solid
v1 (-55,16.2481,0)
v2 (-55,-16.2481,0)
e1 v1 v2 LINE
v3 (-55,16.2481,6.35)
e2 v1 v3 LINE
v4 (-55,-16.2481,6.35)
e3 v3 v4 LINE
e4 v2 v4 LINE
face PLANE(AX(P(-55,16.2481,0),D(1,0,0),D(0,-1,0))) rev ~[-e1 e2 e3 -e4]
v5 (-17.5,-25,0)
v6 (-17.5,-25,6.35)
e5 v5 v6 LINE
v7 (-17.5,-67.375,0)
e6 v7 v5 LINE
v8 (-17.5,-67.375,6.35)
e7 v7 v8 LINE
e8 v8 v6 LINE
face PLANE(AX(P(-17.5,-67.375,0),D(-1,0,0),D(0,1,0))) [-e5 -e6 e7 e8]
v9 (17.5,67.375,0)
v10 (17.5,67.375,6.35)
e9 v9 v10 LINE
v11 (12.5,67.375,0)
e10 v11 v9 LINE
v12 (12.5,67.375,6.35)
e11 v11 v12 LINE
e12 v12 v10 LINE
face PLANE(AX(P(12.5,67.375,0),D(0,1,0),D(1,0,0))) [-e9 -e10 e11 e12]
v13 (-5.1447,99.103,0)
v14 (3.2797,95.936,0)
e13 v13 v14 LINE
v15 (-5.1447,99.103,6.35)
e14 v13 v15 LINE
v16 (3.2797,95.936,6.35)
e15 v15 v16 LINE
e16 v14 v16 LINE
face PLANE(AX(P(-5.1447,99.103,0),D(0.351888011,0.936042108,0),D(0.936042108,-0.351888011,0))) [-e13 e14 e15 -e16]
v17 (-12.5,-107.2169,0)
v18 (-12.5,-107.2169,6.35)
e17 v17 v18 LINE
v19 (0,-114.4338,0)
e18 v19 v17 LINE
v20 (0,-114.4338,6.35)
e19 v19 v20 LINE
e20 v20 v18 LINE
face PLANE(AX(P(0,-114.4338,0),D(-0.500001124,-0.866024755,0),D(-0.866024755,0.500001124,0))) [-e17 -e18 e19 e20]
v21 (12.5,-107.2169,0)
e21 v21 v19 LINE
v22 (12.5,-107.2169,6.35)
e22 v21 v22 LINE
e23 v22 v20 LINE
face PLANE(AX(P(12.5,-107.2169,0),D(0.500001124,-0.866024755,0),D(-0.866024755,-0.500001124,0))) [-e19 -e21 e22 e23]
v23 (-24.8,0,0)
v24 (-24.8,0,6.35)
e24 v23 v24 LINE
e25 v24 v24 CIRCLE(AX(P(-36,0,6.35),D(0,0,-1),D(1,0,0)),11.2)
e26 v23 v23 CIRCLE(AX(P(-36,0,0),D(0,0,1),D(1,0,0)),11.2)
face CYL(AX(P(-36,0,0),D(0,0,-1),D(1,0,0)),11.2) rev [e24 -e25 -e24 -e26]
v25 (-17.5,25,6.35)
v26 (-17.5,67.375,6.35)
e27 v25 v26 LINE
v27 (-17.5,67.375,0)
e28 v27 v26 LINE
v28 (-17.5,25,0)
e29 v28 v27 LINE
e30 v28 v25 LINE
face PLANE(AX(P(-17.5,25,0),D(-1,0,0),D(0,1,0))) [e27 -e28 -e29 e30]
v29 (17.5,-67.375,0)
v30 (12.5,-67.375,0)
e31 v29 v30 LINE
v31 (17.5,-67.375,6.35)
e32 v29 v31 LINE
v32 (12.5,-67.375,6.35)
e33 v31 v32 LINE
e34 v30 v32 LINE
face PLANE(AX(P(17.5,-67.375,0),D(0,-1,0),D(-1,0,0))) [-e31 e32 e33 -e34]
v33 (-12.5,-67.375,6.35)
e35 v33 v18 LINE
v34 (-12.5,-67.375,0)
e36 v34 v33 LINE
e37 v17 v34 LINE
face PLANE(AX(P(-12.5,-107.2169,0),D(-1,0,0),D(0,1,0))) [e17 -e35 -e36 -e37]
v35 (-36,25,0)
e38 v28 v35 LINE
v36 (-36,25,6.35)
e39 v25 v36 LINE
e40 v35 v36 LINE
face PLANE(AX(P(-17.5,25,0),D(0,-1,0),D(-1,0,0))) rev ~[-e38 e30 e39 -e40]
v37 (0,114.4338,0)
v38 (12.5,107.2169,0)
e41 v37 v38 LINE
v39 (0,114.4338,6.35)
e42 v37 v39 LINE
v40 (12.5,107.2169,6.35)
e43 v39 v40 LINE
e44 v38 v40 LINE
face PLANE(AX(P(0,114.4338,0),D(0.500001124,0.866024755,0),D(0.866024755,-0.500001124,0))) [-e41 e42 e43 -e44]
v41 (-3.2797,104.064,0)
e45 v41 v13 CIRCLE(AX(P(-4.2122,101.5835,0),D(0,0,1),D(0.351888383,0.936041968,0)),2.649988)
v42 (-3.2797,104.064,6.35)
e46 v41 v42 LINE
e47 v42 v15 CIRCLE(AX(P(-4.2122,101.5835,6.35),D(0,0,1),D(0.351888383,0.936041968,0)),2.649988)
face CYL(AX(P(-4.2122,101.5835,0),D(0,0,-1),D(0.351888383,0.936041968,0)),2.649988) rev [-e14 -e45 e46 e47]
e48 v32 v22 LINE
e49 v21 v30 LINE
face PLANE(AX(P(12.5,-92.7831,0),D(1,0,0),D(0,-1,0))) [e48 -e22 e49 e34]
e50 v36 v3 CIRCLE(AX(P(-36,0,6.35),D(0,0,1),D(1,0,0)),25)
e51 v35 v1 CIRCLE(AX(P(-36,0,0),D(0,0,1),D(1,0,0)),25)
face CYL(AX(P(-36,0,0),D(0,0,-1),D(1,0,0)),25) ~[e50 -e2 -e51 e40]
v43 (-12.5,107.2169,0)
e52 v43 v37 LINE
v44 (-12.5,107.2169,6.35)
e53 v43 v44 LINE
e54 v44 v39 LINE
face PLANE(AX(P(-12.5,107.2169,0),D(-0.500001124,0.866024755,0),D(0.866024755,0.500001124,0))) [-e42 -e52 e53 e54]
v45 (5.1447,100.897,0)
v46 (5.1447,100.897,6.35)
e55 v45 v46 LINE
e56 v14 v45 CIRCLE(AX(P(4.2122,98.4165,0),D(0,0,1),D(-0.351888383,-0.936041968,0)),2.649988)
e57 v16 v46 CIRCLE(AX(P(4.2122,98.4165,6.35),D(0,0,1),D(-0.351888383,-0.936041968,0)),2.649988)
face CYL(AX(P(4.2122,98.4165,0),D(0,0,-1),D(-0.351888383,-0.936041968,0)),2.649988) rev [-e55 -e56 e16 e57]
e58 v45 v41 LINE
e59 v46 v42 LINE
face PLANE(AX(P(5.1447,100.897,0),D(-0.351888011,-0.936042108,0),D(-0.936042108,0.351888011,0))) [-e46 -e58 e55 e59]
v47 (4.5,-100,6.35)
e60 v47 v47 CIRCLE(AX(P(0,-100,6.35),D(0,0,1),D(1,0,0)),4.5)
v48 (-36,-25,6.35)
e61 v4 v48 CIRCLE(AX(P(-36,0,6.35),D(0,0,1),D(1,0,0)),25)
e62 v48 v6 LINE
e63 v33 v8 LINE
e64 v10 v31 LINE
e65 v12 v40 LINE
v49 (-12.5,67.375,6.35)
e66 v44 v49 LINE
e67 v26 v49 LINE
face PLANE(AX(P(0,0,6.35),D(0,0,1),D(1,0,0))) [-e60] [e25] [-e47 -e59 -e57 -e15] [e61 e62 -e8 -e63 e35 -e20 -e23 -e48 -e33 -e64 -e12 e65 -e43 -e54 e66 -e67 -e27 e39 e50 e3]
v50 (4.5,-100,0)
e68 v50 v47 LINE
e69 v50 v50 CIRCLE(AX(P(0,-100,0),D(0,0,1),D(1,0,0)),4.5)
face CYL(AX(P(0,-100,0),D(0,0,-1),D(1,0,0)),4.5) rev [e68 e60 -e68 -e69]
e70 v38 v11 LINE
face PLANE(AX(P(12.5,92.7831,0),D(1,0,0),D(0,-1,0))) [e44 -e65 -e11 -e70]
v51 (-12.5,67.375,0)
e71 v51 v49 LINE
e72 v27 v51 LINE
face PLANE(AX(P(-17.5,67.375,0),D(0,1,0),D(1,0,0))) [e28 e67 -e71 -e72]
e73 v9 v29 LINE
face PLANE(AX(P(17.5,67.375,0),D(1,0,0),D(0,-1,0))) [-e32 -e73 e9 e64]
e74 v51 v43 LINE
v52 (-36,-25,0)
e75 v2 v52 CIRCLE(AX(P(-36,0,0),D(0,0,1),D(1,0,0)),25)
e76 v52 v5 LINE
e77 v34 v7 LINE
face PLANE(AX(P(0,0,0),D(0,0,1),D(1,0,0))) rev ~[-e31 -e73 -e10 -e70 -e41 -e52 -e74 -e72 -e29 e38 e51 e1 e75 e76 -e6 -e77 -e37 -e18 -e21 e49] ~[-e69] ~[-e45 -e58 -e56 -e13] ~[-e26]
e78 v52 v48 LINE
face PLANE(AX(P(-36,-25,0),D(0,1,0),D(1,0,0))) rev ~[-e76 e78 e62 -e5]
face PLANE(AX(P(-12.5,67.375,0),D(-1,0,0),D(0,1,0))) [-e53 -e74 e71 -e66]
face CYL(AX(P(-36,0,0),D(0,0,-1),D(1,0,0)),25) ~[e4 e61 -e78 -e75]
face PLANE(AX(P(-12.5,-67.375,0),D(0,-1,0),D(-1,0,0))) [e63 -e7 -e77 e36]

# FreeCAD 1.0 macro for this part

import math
import FreeCAD as App
import Part
import Sketcher

V = App.Vector
Q = App.Units.Quantity

doc = App.newDocument("Part")
params = doc.addObject("Spreadsheet::Sheet", "Params")
for row, (alias, value) in enumerate([
    ("sketch1_diameter", "9 mm"),
    ("sketch1_radius", "25 mm"),
    ("sketch1_diameter2", "22.4 mm"),
    ("sketch1_radius2", "2.65 mm"),
    ("sketch1_length", "9 mm"),
    ("pad1_length", "6.35 mm"),
], start=1):
    params.set(f"A{row}", alias)
    params.set(f"B{row}", "=" + value)
    params.setAlias(f"B{row}", alias)

body = doc.addObject("PartDesign::Body", "Body")

# Sketch on XY plane
sketch1 = body.newObject("Sketcher::SketchObject", "Sketch")
sketch1.AttachmentSupport = (doc.getObject("XY_Plane"), [""])
sketch1.MapMode = "FlatFace"
sketch1.addGeometry(Part.LineSegment(V(0, -114.4338, 0), V(12.5, -107.2169, 0)), False)
sketch1.addGeometry(Part.LineSegment(V(12.5, -107.2169, 0), V(12.5, -67.375, 0)), False)
sketch1.addGeometry(Part.LineSegment(V(12.5, -67.375, 0), V(17.5, -67.375, 0)), False)
sketch1.addGeometry(Part.LineSegment(V(17.5, -67.375, 0), V(17.5, 67.375, 0)), False)
sketch1.addGeometry(Part.LineSegment(V(17.5, 67.375, 0), V(12.5, 67.375, 0)), False)
sketch1.addGeometry(Part.LineSegment(V(12.5, 67.375, 0), V(12.5, 107.2169, 0)), False)
sketch1.addGeometry(Part.LineSegment(V(12.5, 107.2169, 0), V(0, 114.4338, 0)), False)
sketch1.addGeometry(Part.LineSegment(V(0, 114.4338, 0), V(-12.5, 107.2169, 0)), False)
sketch1.addGeometry(Part.LineSegment(V(-12.5, 107.2169, 0), V(-12.5, 67.375, 0)), False)
sketch1.addGeometry(Part.LineSegment(V(-12.5, 67.375, 0), V(-17.5, 67.375, 0)), False)
sketch1.addGeometry(Part.LineSegment(V(-17.5, 67.375, 0), V(-17.5, 25, 0)), False)
sketch1.addGeometry(Part.LineSegment(V(-17.5, 25, 0), V(-36, 25, 0)), False)
sketch1.addGeometry(Part.ArcOfCircle(Part.Circle(V(-36, 0, 0), V(0, 0, 1), 25), math.radians(90), math.radians(139.464157)), False)
sketch1.addGeometry(Part.LineSegment(V(-55, 16.2481, 0), V(-55, -16.2481, 0)), False)
sketch1.addGeometry(Part.ArcOfCircle(Part.Circle(V(-36, 0, 0), V(0, 0, 1), 25), math.radians(-139.464157), math.radians(-90)), False)
sketch1.addGeometry(Part.LineSegment(V(-36, -25, 0), V(-17.5, -25, 0)), False)
sketch1.addGeometry(Part.LineSegment(V(-17.5, -25, 0), V(-17.5, -67.375, 0)), False)
sketch1.addGeometry(Part.LineSegment(V(-17.5, -67.375, 0), V(-12.5, -67.375, 0)), False)
sketch1.addGeometry(Part.LineSegment(V(-12.5, -67.375, 0), V(-12.5, -107.2169, 0)), False)
sketch1.addGeometry(Part.LineSegment(V(-12.5, -107.2169, 0), V(0, -114.4338, 0)), False)
sketch1.addGeometry(Part.Circle(V(0, -100, 0), V(0, 0, 1), 4.5), False)
sketch1.addGeometry(Part.LineSegment(V(-3.2797, 104.064, 0), V(5.1447, 100.897, 0)), False)
sketch1.addGeometry(Part.ArcOfCircle(Part.Circle(V(4.2122, 98.4165, 0), V(0, 0, 1), 2.649988), math.radians(-110.602861), math.radians(69.397139)), False)
sketch1.addGeometry(Part.LineSegment(V(3.2797, 95.936, 0), V(-5.1447, 99.103, 0)), False)
sketch1.addGeometry(Part.ArcOfCircle(Part.Circle(V(-4.2122, 101.5835, 0), V(0, 0, 1), 2.649988), math.radians(69.397139), math.radians(249.397139)), False)
sketch1.addGeometry(Part.Circle(V(-36, 0, 0), V(0, 0, 1), 11.2), False)
sketch1.addConstraint(Sketcher.Constraint("Coincident", 0, 2, 1, 1))
sketch1.addConstraint(Sketcher.Constraint("Coincident", 1, 2, 2, 1))
sketch1.addConstraint(Sketcher.Constraint("Coincident", 2, 2, 3, 1))
sketch1.addConstraint(Sketcher.Constraint("Coincident", 3, 2, 4, 1))
sketch1.addConstraint(Sketcher.Constraint("Coincident", 4, 2, 5, 1))
sketch1.addConstraint(Sketcher.Constraint("Coincident", 5, 2, 6, 1))
sketch1.addConstraint(Sketcher.Constraint("Coincident", 6, 2, 7, 1))
sketch1.addConstraint(Sketcher.Constraint("Coincident", 7, 2, 8, 1))
sketch1.addConstraint(Sketcher.Constraint("Coincident", 8, 2, 9, 1))
sketch1.addConstraint(Sketcher.Constraint("Coincident", 9, 2, 10, 1))
sketch1.addConstraint(Sketcher.Constraint("Coincident", 10, 2, 11, 1))
sketch1.addConstraint(Sketcher.Constraint("Tangent", 11, 2, 12, 1))
sketch1.addConstraint(Sketcher.Constraint("Coincident", 12, 2, 13, 1))
sketch1.addConstraint(Sketcher.Constraint("Coincident", 13, 2, 14, 1))
sketch1.addConstraint(Sketcher.Constraint("Tangent", 14, 2, 15, 1))
sketch1.addConstraint(Sketcher.Constraint("Coincident", 15, 2, 16, 1))
sketch1.addConstraint(Sketcher.Constraint("Coincident", 16, 2, 17, 1))
sketch1.addConstraint(Sketcher.Constraint("Coincident", 17, 2, 18, 1))
sketch1.addConstraint(Sketcher.Constraint("Coincident", 18, 2, 19, 1))
sketch1.addConstraint(Sketcher.Constraint("Coincident", 19, 2, 0, 1))
sketch1.addConstraint(Sketcher.Constraint("Tangent", 21, 2, 22, 2))
sketch1.addConstraint(Sketcher.Constraint("Tangent", 22, 1, 23, 1))
sketch1.addConstraint(Sketcher.Constraint("Tangent", 23, 2, 24, 2))
sketch1.addConstraint(Sketcher.Constraint("Tangent", 24, 1, 21, 1))
sketch1.addConstraint(Sketcher.Constraint("Vertical", 1))
sketch1.addConstraint(Sketcher.Constraint("Horizontal", 2))
sketch1.addConstraint(Sketcher.Constraint("Vertical", 3))
sketch1.addConstraint(Sketcher.Constraint("Horizontal", 4))
sketch1.addConstraint(Sketcher.Constraint("Vertical", 5))
sketch1.addConstraint(Sketcher.Constraint("Vertical", 8))
sketch1.addConstraint(Sketcher.Constraint("Horizontal", 9))
sketch1.addConstraint(Sketcher.Constraint("Vertical", 10))
sketch1.addConstraint(Sketcher.Constraint("Horizontal", 11))
sketch1.addConstraint(Sketcher.Constraint("Vertical", 13))
sketch1.addConstraint(Sketcher.Constraint("Horizontal", 15))
sketch1.addConstraint(Sketcher.Constraint("Vertical", 16))
sketch1.addConstraint(Sketcher.Constraint("Horizontal", 17))
sketch1.addConstraint(Sketcher.Constraint("Vertical", 18))
sketch1.addConstraint(Sketcher.Constraint("Coincident", 14, 3, 12, 3))
sketch1.addConstraint(Sketcher.Constraint("Coincident", 25, 3, 12, 3))
sketch1.addConstraint(Sketcher.Constraint("Equal", 12, 14))
sketch1.addConstraint(Sketcher.Constraint("Equal", 22, 24))
sketch1.addConstraint(Sketcher.Constraint("Symmetric", 0, 2, 7, 2, -1, 1))
sketch1.addConstraint(Sketcher.Constraint("Symmetric", 2, 2, 9, 2, -1, 1))
sketch1.addConstraint(Sketcher.Constraint("Symmetric", 3, 2, 16, 2, -1, 1))
sketch1.addConstraint(Sketcher.Constraint("Symmetric", 5, 2, 18, 2, -1, 1))
sketch1.addConstraint(Sketcher.Constraint("Symmetric", 6, 2, 19, 2, -1, 1))
sketch1.addConstraint(Sketcher.Constraint("Symmetric", 5, 2, 7, 2, -2))
sketch1.addConstraint(Sketcher.Constraint("PointOnObject", 12, 3, -1))
sketch1.addConstraint(Sketcher.Constraint("PointOnObject", 20, 3, -2))
sketch1.addConstraint(Sketcher.Constraint("PointOnObject", 6, 2, -2))
sketch1.addConstraint(Sketcher.Constraint("Horizontal", 4, 2, 8, 2))
sketch1.addConstraint(Sketcher.Constraint("Diameter", 20, Q("9 mm")))
sketch1.addConstraint(Sketcher.Constraint("Radius", 12, Q("25 mm")))
sketch1.addConstraint(Sketcher.Constraint("Diameter", 25, Q("22.4 mm")))
sketch1.addConstraint(Sketcher.Constraint("Angle", 0, Q("30 deg")))
sketch1.addConstraint(Sketcher.Constraint("Radius", 22, Q("2.65 mm")))
sketch1.addConstraint(Sketcher.Constraint("Distance", 21, Q("9 mm")))
sketch1.addConstraint(Sketcher.Constraint("DistanceX", 12, 3, -1, 1, Q("36 mm")))
sketch1.addConstraint(Sketcher.Constraint("DistanceX", 7, 2, 5, 2, Q("25 mm")))
sketch1.addConstraint(Sketcher.Constraint("DistanceX", 8, 2, 3, 2, Q("30 mm")))
sketch1.addConstraint(Sketcher.Constraint("DistanceY", 3, 1, 3, 2, Q("134.75 mm")))
sketch1.addConstraint(Sketcher.Constraint("DistanceY", 20, 3, -1, 1, Q("100 mm")))
sketch1.addConstraint(Sketcher.Constraint("DistanceX", 12, 2, -1, 1, Q("55 mm")))
sketch1.addConstraint(Sketcher.Constraint("DistanceY", 1, 1, 1, 2, Q("39.842 mm")))
sketch1.addConstraint(Sketcher.Constraint("DistanceY", 21, 2, 5, 2, Q("6.32 mm")))
sketch1.addConstraint(Sketcher.Constraint("DistanceY", -1, 1, 22, 1, Q("95.936 mm")))
sketch1.addConstraint(Sketcher.Constraint("DistanceX", -1, 1, 22, 3, Q("4.2122 mm")))
sketch1.setExpression("Constraints[52]", "Params.sketch1_diameter")
sketch1.setExpression("Constraints[53]", "Params.sketch1_radius")
sketch1.setExpression("Constraints[54]", "Params.sketch1_diameter2")
sketch1.setExpression("Constraints[56]", "Params.sketch1_radius2")
sketch1.setExpression("Constraints[57]", "Params.sketch1_length")
pad1 = body.newObject("PartDesign::Pad", "Pad")
pad1.Profile = sketch1
pad1.setExpression("Length", "Params.pad1_length")

doc.recompute()
